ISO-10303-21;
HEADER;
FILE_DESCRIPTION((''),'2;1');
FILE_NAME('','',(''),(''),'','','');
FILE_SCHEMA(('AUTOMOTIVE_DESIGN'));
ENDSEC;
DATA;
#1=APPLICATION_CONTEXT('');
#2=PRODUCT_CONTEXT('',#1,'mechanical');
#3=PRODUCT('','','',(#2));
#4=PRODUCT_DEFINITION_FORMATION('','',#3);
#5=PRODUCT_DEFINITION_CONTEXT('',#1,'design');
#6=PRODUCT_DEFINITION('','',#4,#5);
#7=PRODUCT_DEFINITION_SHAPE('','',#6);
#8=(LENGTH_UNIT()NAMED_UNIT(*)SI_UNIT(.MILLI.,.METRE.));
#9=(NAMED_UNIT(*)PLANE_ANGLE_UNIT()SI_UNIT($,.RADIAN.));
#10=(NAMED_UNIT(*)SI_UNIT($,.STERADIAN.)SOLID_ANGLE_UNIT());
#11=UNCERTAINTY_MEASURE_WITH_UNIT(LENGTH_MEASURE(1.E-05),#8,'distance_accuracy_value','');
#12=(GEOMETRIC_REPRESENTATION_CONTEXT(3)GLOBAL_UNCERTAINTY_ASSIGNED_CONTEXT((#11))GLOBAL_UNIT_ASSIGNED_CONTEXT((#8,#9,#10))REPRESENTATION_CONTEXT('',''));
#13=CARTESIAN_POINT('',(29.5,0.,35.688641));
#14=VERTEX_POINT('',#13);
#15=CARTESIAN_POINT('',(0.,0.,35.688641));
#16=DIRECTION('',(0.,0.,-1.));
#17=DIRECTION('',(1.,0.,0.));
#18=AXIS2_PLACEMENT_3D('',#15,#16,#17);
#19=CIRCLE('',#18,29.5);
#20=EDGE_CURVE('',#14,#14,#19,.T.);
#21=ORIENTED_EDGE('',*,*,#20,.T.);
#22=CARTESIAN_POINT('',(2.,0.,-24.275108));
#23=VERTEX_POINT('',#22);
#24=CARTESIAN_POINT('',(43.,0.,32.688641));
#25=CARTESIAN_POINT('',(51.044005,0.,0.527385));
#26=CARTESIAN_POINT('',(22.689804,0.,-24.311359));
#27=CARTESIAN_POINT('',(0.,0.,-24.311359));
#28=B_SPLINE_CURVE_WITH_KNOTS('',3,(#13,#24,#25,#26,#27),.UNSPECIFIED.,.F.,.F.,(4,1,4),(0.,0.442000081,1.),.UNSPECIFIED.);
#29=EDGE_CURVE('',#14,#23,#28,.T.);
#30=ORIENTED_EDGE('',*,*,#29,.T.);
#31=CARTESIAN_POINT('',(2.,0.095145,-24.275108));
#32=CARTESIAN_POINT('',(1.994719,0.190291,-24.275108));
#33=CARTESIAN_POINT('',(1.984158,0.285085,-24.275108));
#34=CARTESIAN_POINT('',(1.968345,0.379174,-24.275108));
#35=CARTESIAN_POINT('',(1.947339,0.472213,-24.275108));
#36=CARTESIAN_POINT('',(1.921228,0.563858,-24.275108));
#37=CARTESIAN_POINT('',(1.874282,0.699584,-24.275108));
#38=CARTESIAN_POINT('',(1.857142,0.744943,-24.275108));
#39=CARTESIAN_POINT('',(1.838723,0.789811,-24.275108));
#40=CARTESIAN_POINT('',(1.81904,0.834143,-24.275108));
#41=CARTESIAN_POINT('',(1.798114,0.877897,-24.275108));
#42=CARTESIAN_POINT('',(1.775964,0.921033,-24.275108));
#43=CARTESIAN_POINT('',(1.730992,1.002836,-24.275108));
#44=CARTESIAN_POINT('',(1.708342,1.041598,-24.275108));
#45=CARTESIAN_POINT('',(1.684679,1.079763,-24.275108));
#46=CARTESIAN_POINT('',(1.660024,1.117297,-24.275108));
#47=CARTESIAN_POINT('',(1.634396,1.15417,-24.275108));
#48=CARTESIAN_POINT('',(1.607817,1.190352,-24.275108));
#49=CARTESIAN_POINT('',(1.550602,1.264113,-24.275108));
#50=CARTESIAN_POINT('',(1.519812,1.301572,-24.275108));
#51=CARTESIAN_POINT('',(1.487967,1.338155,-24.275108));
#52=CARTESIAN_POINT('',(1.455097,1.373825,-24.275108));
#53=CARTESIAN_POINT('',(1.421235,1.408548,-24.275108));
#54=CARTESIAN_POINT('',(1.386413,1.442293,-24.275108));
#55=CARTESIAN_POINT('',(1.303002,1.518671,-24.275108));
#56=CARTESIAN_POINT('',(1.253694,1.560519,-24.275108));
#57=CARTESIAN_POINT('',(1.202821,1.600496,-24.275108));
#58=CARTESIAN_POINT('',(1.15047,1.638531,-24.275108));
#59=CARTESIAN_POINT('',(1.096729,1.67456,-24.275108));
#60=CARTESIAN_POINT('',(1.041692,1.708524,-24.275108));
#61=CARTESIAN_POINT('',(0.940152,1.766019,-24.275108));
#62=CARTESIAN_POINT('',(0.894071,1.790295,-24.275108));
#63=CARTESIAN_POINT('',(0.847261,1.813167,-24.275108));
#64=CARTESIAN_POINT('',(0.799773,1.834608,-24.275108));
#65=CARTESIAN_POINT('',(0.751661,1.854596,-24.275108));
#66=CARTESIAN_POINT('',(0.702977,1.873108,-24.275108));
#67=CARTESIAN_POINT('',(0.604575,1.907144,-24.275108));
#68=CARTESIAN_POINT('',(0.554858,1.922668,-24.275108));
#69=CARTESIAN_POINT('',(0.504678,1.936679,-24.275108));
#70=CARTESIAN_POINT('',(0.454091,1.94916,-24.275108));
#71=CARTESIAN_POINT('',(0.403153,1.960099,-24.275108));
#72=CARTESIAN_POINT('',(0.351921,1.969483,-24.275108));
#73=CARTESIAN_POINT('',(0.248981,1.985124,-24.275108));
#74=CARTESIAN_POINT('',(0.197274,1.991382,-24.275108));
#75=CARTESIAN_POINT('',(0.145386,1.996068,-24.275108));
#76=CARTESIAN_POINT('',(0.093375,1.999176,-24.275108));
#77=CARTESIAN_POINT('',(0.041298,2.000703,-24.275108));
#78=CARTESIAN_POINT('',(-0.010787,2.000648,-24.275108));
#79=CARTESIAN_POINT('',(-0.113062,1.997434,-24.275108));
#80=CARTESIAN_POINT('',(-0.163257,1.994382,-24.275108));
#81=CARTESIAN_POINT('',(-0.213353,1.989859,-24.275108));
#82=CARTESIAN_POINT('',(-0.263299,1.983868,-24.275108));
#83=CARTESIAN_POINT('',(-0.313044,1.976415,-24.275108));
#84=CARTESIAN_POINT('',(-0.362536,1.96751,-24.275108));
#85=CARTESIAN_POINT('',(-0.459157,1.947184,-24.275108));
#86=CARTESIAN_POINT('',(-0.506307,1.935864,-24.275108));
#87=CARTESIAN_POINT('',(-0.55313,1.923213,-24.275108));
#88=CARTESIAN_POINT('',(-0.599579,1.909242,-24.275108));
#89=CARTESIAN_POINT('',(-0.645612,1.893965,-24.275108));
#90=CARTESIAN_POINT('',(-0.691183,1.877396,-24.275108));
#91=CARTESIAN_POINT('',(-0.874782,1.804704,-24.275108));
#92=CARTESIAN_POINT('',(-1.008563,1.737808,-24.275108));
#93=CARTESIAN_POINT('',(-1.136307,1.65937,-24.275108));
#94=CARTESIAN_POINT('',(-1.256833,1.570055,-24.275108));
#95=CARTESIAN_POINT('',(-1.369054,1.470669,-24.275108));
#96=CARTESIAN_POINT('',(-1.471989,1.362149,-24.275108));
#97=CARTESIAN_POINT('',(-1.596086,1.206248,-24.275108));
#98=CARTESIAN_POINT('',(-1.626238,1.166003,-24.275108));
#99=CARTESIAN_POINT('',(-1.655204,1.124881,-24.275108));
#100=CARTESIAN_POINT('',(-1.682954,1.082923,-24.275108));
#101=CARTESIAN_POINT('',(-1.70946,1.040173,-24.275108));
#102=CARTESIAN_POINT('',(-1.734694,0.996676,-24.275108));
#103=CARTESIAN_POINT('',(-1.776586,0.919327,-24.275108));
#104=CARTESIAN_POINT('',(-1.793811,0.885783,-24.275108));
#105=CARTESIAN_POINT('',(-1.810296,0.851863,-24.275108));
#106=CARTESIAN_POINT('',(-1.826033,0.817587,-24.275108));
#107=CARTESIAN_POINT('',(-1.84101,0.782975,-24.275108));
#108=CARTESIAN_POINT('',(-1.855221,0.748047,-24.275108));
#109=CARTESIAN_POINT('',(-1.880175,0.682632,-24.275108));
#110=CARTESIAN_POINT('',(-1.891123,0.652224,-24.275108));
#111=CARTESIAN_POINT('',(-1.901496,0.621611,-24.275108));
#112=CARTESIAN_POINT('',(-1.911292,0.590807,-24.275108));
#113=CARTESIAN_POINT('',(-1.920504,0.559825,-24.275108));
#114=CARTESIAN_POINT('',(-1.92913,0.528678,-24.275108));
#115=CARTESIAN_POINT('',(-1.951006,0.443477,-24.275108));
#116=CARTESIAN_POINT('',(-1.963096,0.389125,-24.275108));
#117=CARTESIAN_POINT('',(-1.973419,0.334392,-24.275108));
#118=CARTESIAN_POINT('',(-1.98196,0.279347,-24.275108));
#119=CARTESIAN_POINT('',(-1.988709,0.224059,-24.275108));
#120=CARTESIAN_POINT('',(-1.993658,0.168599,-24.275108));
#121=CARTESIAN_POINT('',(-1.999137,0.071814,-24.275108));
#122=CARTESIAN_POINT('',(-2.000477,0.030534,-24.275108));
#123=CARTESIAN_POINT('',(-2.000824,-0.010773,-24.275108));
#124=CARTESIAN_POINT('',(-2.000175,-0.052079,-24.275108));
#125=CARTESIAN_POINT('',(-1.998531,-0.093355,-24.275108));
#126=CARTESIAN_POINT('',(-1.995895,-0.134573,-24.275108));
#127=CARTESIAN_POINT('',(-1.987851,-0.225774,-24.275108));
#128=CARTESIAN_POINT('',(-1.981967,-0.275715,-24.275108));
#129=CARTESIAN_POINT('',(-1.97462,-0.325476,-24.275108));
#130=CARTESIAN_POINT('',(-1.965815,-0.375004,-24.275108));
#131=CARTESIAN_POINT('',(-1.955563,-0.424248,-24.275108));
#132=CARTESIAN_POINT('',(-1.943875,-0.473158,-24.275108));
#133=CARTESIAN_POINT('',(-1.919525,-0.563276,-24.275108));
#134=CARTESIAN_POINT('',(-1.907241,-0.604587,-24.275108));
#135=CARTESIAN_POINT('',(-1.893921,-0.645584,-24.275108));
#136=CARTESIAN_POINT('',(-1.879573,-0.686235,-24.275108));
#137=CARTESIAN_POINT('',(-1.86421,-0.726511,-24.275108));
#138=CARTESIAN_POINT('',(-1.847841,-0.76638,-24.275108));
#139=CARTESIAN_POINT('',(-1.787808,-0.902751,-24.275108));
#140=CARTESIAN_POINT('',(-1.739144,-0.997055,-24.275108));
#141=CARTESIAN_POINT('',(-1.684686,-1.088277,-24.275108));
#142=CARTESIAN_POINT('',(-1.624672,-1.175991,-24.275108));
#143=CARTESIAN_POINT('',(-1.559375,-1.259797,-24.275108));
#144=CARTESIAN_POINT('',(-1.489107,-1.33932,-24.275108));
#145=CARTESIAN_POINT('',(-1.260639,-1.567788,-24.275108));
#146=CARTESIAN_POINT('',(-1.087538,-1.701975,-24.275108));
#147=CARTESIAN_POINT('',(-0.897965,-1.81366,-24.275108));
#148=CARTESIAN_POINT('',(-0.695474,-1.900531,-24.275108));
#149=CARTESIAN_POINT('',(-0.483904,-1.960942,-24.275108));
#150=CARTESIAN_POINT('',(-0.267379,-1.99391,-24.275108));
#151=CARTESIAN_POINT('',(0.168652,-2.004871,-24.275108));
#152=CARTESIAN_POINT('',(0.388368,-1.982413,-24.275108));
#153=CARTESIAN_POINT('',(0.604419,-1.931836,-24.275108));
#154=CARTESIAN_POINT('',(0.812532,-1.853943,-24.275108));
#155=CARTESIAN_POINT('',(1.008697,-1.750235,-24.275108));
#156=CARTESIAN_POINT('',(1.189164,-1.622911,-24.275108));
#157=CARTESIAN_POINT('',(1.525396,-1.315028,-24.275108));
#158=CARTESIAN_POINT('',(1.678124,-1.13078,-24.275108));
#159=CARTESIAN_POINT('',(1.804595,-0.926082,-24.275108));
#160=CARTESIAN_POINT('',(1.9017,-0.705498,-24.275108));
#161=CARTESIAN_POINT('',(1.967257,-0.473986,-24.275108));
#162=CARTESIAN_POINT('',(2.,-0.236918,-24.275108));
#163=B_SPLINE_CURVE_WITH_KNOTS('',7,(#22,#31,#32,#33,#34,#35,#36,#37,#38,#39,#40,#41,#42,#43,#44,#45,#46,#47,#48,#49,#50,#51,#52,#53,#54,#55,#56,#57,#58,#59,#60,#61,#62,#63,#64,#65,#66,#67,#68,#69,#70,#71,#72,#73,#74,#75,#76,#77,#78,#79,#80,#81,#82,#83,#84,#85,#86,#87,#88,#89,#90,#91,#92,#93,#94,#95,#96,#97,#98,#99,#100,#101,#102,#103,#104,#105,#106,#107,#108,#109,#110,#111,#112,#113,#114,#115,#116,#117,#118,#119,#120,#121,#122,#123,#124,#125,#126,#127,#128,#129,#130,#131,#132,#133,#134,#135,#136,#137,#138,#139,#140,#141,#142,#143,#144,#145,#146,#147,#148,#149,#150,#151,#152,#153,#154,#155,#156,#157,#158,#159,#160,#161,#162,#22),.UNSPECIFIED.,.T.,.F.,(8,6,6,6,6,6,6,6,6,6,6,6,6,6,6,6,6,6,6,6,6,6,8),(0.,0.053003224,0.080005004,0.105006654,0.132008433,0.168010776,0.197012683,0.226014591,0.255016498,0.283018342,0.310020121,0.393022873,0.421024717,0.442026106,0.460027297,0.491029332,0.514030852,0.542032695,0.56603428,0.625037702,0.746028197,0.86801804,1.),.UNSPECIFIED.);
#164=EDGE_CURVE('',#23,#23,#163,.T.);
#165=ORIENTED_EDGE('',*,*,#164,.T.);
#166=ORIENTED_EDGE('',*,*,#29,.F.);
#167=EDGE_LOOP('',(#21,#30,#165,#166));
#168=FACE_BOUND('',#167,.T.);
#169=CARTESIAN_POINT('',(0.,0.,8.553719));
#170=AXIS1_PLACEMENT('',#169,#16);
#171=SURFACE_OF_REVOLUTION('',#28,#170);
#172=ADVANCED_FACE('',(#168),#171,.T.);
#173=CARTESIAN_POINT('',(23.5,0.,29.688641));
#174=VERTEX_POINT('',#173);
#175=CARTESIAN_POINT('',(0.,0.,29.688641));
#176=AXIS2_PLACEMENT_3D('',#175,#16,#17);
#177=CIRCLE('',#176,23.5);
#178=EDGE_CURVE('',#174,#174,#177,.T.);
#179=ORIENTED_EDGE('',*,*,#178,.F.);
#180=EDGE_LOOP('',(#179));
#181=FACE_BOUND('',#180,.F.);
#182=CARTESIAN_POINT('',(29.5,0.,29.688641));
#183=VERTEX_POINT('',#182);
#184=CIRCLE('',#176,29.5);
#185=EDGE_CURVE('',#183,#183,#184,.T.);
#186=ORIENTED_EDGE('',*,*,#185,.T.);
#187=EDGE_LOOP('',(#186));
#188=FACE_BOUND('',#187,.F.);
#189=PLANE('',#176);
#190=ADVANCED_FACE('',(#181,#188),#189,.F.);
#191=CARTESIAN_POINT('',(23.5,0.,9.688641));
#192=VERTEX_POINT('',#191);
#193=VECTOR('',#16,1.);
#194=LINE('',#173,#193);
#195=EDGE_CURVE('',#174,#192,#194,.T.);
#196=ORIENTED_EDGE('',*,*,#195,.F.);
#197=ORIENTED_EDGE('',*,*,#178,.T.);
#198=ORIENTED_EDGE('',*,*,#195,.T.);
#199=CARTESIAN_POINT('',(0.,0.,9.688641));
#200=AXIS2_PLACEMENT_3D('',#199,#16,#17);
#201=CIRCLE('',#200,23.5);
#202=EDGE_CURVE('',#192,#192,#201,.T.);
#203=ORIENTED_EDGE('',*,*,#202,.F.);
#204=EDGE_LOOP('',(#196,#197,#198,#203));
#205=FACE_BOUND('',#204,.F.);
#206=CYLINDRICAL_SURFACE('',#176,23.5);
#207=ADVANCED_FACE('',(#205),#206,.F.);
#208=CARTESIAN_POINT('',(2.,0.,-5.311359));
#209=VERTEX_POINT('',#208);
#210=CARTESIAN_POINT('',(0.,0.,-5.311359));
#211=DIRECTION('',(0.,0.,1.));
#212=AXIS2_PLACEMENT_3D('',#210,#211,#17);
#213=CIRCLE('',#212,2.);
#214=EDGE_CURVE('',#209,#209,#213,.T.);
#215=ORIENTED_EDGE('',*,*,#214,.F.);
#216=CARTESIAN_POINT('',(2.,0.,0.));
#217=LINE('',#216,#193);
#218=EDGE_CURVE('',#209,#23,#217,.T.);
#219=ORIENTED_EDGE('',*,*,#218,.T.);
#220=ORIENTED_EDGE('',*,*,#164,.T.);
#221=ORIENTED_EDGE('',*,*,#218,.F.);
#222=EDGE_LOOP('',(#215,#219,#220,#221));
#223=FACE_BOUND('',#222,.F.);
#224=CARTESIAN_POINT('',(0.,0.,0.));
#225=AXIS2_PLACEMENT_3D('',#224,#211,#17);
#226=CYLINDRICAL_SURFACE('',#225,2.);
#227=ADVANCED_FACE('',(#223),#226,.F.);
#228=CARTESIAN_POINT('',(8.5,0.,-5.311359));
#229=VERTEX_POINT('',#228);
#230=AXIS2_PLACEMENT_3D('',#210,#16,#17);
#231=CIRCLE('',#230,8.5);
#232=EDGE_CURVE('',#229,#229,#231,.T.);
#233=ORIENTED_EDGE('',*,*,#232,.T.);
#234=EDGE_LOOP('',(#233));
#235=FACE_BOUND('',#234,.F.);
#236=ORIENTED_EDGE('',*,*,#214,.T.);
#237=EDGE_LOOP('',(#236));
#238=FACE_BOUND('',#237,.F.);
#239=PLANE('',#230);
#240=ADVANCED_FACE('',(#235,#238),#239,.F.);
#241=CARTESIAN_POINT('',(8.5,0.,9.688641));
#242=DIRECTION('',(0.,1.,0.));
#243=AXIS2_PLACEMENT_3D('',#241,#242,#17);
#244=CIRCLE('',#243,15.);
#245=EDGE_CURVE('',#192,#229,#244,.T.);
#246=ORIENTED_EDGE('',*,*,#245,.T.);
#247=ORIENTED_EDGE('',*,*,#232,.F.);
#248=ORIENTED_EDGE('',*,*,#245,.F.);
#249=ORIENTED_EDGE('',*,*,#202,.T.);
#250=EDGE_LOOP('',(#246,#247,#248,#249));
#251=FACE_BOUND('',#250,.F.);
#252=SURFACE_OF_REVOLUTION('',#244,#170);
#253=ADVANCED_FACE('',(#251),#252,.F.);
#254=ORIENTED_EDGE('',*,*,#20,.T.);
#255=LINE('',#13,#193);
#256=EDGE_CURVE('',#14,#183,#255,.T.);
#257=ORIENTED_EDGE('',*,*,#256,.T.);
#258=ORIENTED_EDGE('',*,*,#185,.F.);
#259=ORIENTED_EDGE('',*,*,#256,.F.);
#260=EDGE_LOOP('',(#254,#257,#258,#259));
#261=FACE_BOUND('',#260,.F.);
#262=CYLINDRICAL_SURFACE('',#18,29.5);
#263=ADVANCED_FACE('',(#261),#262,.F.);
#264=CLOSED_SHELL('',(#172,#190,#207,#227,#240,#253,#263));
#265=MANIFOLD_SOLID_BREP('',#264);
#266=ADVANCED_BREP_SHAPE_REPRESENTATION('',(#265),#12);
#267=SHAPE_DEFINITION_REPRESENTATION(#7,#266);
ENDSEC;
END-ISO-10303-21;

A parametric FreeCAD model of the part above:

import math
import FreeCAD as App
import Part
import Sketcher
from FreeCAD import Vector

doc = App.newDocument("Part")
body = doc.addObject("PartDesign::Body", "Body")

sketch1 = body.newObject("Sketcher::SketchObject", "Sketch")
sketch1.AttachmentSupport = (doc.getObject("XZ_Plane"), [""])
sketch1.MapMode = "FlatFace"
sketch1.addGeometry([
    Part.LineSegment(Vector(29.5, 29.688641, 0), Vector(23.5, 29.688641, 0)),
    Part.LineSegment(Vector(23.5, 29.688641, 0), Vector(23.5, 9.688641, 0)),
    Part.ArcOfCircle(Part.Circle(Vector(8.5, 9.688641, 0), Vector(0, 0, 1), 15), math.radians(-90), math.radians(0)),
    Part.LineSegment(Vector(8.5, -5.311359, 0), Vector(0, -5.311359, 0)),
    Part.LineSegment(Vector(0, -5.311359, 0), Vector(0, -24.311359, 0)),
    Part.BSplineCurve([Vector(29.5, 35.688641, 0), Vector(43, 32.688641, 0), Vector(51.044005, 0.527385, 0), Vector(22.689804, -24.311359, 0), Vector(0, -24.311359, 0)], [4, 1, 4], [0, 0.442000081, 1], False, 3, [1, 1, 1, 1, 1], False),
    Part.LineSegment(Vector(29.5, 35.688641, 0), Vector(29.5, 29.688641, 0)),
], False)
sketch1.addConstraint([
    Sketcher.Constraint("Block", 5),
    Sketcher.Constraint("Coincident", 0, 2, 1, 1),
    Sketcher.Constraint("Tangent", 1, 2, 2, 2),
    Sketcher.Constraint("Tangent", 2, 1, 3, 1),
    Sketcher.Constraint("Coincident", 3, 2, 4, 1),
    Sketcher.Constraint("Coincident", 4, 2, 5, 2),
    Sketcher.Constraint("Coincident", 5, 1, 6, 1),
    Sketcher.Constraint("Coincident", 6, 2, 0, 1),
    Sketcher.Constraint("Horizontal", 0),
    Sketcher.Constraint("Vertical", 1),
    Sketcher.Constraint("Horizontal", 3),
    Sketcher.Constraint("Vertical", 4),
    Sketcher.Constraint("Vertical", 6),
    Sketcher.Constraint("Equal", 0, 6),
    Sketcher.Constraint("Radius", 2, 15.0),
    Sketcher.Constraint("DistanceX", 0, 2, 0, 1, 6.0),
    Sketcher.Constraint("DistanceY", 1, 2, 1, 1, 20.0),
])
revolution = body.newObject("PartDesign::Revolution", "Revolution")
revolution.Profile = sketch1
revolution.ReferenceAxis = (sketch1, ["V_Axis"])
revolution.Angle = 360

sketch2 = body.newObject("Sketcher::SketchObject", "Sketch001")
sketch2.AttachmentSupport = (doc.getObject("XY_Plane"), [""])
sketch2.MapMode = "FlatFace"
sketch2.addGeometry(Part.Circle(Vector(0, 0, 0), Vector(0, 0, 1), 2), False)
sketch2.addConstraint([
    Sketcher.Constraint("Coincident", 0, 3, -1, 1),
    Sketcher.Constraint("Diameter", 0, 4.0),
])
pocket1 = body.newObject("PartDesign::Pocket", "Pocket")
pocket1.Profile = sketch2
pocket1.Type = "ThroughAll"

doc.recompute()
